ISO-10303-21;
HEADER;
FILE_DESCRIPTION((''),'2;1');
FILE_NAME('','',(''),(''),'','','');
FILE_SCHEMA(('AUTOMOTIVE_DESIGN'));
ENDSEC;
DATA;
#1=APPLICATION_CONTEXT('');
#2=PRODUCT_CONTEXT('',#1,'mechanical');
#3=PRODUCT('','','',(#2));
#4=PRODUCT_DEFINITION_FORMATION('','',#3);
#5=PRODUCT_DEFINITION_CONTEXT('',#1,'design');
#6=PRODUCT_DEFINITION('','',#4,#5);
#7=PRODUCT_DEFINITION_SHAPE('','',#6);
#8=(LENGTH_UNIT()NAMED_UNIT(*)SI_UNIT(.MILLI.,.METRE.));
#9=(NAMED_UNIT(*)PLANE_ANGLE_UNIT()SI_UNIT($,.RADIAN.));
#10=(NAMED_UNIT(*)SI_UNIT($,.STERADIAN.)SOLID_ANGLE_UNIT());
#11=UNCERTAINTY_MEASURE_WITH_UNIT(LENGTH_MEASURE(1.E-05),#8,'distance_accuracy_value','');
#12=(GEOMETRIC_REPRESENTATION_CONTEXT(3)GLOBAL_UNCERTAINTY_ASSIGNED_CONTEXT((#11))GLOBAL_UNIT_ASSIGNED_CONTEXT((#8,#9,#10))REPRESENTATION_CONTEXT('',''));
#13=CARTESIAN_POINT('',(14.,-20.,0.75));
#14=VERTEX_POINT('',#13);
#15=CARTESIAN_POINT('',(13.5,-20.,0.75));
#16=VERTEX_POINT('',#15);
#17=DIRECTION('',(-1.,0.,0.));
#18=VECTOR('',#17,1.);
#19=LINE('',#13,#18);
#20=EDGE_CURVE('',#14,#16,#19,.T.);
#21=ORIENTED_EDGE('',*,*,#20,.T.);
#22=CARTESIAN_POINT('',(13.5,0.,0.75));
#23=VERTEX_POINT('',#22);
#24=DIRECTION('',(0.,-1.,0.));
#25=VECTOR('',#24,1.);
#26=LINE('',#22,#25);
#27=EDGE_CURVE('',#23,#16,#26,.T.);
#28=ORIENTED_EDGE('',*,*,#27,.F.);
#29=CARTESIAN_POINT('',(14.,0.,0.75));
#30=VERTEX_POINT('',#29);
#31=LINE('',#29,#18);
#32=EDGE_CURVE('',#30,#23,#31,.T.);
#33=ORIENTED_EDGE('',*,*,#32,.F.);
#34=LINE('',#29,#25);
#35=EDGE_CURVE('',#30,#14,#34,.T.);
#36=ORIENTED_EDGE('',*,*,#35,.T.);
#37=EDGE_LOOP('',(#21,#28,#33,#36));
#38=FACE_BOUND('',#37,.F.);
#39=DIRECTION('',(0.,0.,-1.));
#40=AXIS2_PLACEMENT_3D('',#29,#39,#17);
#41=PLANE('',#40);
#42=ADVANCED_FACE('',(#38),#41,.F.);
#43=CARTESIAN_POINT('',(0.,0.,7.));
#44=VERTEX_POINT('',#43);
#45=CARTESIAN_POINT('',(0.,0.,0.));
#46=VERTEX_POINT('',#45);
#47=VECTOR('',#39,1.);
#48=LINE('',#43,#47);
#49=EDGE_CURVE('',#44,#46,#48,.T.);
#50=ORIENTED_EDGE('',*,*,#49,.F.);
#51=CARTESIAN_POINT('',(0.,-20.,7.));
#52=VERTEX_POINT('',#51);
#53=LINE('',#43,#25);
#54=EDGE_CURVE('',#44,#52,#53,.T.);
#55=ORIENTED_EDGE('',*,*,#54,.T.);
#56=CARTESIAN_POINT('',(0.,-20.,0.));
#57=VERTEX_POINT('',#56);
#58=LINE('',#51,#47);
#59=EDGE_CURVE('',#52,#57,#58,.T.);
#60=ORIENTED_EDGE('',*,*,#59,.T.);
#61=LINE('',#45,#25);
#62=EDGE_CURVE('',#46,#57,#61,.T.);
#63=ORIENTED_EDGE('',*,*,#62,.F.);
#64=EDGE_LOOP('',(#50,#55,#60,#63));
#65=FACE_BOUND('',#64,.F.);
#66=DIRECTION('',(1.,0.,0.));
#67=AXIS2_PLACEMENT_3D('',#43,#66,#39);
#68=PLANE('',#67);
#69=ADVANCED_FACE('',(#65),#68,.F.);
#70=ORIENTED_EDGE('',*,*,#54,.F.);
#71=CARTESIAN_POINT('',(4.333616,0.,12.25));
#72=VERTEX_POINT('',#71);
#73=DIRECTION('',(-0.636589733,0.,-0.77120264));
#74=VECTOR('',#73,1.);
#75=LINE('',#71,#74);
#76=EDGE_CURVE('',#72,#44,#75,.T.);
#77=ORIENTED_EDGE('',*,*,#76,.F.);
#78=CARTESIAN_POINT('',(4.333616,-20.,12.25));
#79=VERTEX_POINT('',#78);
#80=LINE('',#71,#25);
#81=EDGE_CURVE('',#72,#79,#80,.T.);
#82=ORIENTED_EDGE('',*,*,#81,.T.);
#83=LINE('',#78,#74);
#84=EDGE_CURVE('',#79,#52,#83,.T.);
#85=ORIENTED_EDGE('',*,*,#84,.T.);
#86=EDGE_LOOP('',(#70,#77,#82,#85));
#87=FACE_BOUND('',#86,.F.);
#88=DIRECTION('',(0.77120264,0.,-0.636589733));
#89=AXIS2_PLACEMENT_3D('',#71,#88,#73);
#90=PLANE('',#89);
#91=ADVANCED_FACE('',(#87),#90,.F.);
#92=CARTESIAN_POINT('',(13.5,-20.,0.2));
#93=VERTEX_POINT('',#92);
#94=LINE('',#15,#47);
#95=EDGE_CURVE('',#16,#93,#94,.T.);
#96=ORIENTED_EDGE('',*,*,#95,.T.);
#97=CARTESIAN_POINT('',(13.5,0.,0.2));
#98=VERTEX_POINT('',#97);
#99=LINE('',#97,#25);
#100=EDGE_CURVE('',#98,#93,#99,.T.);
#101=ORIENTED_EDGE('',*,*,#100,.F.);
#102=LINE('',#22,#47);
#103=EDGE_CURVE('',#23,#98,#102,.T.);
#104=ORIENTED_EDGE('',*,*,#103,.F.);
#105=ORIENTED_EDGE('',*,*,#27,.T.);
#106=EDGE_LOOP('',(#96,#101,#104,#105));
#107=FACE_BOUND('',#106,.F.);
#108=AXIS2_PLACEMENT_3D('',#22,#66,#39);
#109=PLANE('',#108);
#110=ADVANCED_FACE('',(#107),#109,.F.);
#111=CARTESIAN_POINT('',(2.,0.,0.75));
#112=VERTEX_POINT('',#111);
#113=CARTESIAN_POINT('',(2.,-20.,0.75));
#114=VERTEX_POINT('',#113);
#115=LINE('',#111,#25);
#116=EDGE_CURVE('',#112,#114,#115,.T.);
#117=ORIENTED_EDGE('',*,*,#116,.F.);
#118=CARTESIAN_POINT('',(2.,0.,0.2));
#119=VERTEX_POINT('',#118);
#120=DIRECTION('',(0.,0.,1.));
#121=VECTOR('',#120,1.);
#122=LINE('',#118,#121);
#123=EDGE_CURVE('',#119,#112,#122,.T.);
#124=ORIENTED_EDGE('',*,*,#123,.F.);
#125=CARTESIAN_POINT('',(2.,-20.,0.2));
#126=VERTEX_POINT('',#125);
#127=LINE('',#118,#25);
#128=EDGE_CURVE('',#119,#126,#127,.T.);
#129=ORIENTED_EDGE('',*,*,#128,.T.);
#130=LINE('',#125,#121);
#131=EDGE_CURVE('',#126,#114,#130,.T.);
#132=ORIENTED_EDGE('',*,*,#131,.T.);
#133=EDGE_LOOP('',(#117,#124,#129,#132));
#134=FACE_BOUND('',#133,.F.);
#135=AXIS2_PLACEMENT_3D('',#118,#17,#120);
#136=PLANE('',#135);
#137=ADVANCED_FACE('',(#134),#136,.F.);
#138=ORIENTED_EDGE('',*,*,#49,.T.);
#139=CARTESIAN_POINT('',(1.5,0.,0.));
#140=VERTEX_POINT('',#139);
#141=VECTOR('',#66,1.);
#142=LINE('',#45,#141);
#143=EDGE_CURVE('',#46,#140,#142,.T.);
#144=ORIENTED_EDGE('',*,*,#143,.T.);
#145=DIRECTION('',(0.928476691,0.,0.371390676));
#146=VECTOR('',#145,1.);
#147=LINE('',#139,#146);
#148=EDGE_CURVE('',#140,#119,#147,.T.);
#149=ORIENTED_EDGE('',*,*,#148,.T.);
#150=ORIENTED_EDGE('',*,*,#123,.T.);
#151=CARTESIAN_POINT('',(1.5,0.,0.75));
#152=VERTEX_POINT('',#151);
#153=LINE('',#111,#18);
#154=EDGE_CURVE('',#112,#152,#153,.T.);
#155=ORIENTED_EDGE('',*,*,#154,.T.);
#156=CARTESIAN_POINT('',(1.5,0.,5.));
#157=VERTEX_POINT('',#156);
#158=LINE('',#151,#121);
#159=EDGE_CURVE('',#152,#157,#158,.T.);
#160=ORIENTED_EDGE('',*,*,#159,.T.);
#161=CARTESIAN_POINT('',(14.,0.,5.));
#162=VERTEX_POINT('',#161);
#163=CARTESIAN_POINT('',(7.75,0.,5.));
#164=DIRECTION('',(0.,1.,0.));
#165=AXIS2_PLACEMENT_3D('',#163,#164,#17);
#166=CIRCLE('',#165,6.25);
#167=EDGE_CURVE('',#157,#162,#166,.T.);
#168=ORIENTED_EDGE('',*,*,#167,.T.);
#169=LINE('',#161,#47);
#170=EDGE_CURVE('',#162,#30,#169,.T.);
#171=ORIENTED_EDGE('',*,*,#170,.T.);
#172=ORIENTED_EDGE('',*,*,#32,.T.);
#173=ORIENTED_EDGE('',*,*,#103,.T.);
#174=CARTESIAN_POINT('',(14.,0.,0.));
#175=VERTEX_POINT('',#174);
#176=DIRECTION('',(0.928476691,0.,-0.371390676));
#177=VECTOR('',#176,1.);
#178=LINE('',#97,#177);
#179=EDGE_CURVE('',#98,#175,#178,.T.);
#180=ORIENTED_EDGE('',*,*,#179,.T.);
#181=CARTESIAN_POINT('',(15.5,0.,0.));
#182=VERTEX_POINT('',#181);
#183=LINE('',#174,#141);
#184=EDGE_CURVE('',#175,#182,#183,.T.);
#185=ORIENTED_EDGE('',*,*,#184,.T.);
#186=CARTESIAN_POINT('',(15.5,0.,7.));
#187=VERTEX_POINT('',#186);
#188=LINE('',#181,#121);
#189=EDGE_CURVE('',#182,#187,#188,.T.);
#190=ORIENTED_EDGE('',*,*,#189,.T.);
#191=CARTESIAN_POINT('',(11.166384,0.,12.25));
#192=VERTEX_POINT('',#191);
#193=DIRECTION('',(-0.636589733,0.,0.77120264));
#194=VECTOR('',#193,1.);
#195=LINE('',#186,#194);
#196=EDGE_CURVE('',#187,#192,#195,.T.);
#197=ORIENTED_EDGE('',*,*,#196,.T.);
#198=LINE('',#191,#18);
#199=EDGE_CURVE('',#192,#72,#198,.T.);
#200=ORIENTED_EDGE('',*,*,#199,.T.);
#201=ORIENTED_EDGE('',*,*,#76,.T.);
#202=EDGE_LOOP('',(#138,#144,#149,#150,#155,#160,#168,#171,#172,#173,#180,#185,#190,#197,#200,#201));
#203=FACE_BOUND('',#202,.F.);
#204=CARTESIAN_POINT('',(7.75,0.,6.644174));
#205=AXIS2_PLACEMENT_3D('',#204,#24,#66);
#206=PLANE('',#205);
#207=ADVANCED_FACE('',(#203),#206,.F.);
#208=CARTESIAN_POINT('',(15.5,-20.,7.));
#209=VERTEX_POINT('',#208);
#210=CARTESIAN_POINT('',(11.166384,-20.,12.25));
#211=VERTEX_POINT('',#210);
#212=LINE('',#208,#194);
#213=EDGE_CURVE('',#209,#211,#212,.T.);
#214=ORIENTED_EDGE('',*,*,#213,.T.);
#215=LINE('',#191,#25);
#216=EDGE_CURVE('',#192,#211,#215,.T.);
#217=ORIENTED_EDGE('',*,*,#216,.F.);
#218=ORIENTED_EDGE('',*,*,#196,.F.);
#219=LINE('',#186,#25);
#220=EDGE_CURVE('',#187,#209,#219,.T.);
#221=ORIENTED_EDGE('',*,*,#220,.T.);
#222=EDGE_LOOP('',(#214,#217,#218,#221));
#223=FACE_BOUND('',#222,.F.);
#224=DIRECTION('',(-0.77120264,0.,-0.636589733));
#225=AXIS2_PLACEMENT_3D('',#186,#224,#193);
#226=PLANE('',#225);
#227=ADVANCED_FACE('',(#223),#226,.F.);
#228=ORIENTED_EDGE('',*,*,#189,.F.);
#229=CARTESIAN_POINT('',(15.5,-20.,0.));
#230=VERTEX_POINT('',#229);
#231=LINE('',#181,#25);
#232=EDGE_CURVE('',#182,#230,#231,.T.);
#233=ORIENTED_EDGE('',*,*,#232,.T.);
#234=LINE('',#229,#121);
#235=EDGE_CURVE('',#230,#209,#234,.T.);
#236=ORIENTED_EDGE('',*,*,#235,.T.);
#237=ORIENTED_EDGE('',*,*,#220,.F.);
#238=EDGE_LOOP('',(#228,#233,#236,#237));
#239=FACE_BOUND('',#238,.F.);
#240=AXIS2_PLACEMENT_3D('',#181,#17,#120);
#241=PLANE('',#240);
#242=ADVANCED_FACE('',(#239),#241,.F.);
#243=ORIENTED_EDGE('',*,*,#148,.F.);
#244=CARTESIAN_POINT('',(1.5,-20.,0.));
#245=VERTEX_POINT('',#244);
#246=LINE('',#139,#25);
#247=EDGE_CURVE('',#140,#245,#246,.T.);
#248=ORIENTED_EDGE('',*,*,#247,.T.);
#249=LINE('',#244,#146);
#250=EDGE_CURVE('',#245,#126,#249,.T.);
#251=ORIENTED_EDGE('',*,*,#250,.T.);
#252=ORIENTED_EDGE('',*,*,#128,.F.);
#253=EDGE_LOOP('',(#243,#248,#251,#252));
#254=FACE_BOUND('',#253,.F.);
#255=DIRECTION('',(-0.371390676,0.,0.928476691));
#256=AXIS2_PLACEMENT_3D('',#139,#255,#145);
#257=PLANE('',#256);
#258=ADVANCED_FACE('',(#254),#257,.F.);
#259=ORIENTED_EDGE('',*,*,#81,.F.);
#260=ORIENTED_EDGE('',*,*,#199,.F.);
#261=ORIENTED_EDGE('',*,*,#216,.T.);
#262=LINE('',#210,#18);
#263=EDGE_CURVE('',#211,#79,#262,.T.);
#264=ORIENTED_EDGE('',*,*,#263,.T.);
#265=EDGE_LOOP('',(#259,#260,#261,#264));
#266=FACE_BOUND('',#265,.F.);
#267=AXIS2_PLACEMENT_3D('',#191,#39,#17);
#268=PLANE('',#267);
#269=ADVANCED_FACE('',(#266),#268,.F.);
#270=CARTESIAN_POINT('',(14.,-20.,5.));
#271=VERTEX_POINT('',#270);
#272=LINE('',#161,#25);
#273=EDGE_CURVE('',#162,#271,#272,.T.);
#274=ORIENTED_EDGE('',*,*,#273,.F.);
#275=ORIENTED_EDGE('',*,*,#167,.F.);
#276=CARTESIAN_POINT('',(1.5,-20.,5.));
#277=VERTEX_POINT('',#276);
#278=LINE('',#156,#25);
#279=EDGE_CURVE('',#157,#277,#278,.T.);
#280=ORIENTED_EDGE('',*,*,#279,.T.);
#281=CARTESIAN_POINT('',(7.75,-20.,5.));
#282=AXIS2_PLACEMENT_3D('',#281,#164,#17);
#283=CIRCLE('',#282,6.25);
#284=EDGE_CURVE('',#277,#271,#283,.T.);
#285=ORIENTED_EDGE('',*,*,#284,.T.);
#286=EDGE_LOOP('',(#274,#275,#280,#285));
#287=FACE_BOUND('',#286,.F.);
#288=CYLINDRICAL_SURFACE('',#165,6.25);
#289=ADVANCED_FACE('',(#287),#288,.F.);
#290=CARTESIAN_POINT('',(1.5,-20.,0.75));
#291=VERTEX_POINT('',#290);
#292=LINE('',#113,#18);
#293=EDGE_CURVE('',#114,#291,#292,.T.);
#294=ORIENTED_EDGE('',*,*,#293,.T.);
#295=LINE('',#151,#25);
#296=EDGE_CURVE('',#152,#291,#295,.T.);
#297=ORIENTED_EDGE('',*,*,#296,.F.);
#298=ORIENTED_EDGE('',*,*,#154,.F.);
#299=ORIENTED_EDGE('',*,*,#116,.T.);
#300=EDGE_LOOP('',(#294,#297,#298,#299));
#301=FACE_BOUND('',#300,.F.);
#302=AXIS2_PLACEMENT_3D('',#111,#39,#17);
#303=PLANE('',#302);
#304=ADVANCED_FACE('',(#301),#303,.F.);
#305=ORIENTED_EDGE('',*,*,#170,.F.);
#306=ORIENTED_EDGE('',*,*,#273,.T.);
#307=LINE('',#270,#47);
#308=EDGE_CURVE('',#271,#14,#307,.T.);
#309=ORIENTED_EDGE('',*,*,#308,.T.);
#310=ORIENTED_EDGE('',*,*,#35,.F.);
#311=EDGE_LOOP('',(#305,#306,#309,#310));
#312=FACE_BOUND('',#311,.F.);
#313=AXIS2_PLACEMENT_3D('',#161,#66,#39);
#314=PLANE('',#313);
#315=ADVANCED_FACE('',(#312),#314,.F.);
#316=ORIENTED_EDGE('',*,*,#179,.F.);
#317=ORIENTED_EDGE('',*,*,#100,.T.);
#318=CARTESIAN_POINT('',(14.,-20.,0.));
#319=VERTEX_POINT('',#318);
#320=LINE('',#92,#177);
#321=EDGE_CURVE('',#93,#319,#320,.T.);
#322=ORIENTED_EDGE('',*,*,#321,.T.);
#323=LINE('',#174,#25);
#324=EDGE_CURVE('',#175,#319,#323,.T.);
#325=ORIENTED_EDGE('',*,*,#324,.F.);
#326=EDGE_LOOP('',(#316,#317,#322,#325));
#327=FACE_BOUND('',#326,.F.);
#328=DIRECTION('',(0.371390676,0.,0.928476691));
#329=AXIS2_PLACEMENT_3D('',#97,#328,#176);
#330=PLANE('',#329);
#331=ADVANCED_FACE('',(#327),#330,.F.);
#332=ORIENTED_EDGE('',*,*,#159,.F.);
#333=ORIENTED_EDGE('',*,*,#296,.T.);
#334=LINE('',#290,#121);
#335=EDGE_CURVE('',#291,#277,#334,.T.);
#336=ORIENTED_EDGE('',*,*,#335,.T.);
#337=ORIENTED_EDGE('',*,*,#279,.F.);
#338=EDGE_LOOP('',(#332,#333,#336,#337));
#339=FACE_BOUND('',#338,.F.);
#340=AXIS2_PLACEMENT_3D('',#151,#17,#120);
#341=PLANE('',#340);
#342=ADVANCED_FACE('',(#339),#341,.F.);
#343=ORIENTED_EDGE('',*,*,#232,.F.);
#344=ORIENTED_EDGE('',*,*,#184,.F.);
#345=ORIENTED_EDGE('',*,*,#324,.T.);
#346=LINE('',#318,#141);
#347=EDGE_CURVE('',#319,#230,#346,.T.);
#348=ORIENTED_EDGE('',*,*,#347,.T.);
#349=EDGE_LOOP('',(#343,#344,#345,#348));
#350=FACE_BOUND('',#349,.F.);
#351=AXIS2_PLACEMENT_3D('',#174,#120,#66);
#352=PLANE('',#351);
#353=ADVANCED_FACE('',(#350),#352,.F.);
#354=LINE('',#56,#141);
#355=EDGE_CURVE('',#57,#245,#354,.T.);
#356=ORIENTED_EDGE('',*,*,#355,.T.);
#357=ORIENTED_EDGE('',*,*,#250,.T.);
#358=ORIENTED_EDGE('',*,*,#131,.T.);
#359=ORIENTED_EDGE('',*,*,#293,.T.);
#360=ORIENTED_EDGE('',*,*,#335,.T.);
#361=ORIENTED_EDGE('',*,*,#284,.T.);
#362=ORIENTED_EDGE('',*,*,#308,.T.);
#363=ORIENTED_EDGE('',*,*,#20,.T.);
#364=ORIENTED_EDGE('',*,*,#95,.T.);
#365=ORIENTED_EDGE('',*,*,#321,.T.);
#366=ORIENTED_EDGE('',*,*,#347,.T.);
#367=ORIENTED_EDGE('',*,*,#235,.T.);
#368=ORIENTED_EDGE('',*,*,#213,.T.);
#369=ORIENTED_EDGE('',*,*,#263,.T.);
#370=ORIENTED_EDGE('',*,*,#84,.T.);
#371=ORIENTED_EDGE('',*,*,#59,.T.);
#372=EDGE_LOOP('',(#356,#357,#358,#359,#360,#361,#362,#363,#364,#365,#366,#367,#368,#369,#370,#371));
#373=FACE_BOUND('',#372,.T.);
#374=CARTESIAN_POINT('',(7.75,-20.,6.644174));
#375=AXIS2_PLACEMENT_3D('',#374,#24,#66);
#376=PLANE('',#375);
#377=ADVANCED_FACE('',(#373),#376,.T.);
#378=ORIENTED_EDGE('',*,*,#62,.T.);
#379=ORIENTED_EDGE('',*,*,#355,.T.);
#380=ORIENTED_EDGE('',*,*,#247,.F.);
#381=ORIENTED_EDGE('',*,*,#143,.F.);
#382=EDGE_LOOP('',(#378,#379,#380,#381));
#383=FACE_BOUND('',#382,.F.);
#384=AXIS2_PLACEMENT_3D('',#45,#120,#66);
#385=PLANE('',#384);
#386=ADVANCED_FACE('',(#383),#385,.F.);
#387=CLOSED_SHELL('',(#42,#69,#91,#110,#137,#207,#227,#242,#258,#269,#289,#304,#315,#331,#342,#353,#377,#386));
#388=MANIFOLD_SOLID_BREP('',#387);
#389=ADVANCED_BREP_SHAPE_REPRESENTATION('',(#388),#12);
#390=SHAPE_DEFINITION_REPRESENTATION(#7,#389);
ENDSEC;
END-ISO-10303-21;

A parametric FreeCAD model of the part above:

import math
import FreeCAD as App
import Part
import Sketcher
from FreeCAD import Vector

doc = App.newDocument("Part")
params = doc.addObject("Spreadsheet::Sheet", "Params")
for row, (alias, value) in enumerate([
    ("sketch1_height", "7 mm"),
    ("sketch1_radius", "6.25 mm"),
    ("sketch1_width", "1.5 mm"),
    ("sketch1_width2", "0.5 mm"),
    ("sketch1_height2", "0.55 mm"),
    ("pad1_length", "20 mm"),
], start=1):
    params.set(f"A{row}", alias)
    params.set(f"B{row}", "=" + value)
    params.setAlias(f"B{row}", alias)

body = doc.addObject("PartDesign::Body", "Body")

# Sketch on XZ plane
sketch1 = doc.addObject("Sketcher::SketchObject", "Sketch")
body.addObject(sketch1)
sketch1.AttachmentSupport = (doc.XZ_Plane, [""])
sketch1.MapMode = "FlatFace"
sketch1.addGeometry([
    Part.LineSegment(Vector(0, 7, 0), Vector(0, 0, 0)),  # 0
    Part.LineSegment(Vector(0, 0, 0), Vector(1.5, 0, 0)),  # 1
    Part.LineSegment(Vector(1.5, 0, 0), Vector(2, 0.2, 0)),  # 2
    Part.LineSegment(Vector(2, 0.2, 0), Vector(2, 0.8, 0)),  # 3
    Part.LineSegment(Vector(2, 0.8, 0), Vector(1.5, 0.8, 0)),  # 4
    Part.LineSegment(Vector(1.5, 0.8, 0), Vector(1.5, 5, 0)),  # 5
    Part.ArcOfCircle(Part.Circle(Vector(7.8, 5, 0), Vector(0, 0, 1), 6.2), math.radians(0), math.radians(180)),  # 6
    Part.LineSegment(Vector(14, 5, 0), Vector(14, 0.8, 0)),  # 7
    Part.LineSegment(Vector(14, 0.8, 0), Vector(13.5, 0.8, 0)),  # 8
    Part.LineSegment(Vector(13.5, 0.8, 0), Vector(13.5, 0.2, 0)),  # 9
    Part.LineSegment(Vector(13.5, 0.2, 0), Vector(14, 0, 0)),  # 10
    Part.LineSegment(Vector(14, 0, 0), Vector(15.5, 0, 0)),  # 11
    Part.LineSegment(Vector(15.5, 0, 0), Vector(15.5, 7, 0)),  # 12
    Part.LineSegment(Vector(15.5, 7, 0), Vector(11.2, 12.2, 0)),  # 13
    Part.LineSegment(Vector(11.2, 12.2, 0), Vector(4.3, 12.2, 0)),  # 14
    Part.LineSegment(Vector(4.3, 12.2, 0), Vector(0, 7, 0)),  # 15
], False)
sketch1.addConstraint([
    Sketcher.Constraint("Coincident", 0, 2, 1, 1),
    Sketcher.Constraint("Coincident", 1, 2, 2, 1),
    Sketcher.Constraint("Coincident", 2, 2, 3, 1),
    Sketcher.Constraint("Coincident", 3, 2, 4, 1),
    Sketcher.Constraint("Coincident", 4, 2, 5, 1),
    Sketcher.Constraint("Tangent", 5, 2, 6, 2),
    Sketcher.Constraint("Tangent", 6, 1, 7, 1),
    Sketcher.Constraint("Coincident", 7, 2, 8, 1),
    Sketcher.Constraint("Coincident", 8, 2, 9, 1),
    Sketcher.Constraint("Coincident", 9, 2, 10, 1),
    Sketcher.Constraint("Coincident", 10, 2, 11, 1),
    Sketcher.Constraint("Coincident", 11, 2, 12, 1),
    Sketcher.Constraint("Coincident", 12, 2, 13, 1),
    Sketcher.Constraint("Coincident", 13, 2, 14, 1),
    Sketcher.Constraint("Coincident", 14, 2, 15, 1),
    Sketcher.Constraint("Coincident", 15, 2, 0, 1),
    Sketcher.Constraint("Vertical", 0),
    Sketcher.Constraint("Horizontal", 1),
    Sketcher.Constraint("Vertical", 3),
    Sketcher.Constraint("Horizontal", 4),
    Sketcher.Constraint("Vertical", 5),
    Sketcher.Constraint("Vertical", 7),
    Sketcher.Constraint("Horizontal", 8),
    Sketcher.Constraint("Vertical", 9),
    Sketcher.Constraint("Horizontal", 11),
    Sketcher.Constraint("Vertical", 12),
    Sketcher.Constraint("Horizontal", 14),
    Sketcher.Constraint("Coincident", 0, 2, -1, 1),
    Sketcher.Constraint("PointOnObject", 10, 2, -1),
    Sketcher.Constraint("Horizontal", 4, 2, 7, 2),
    Sketcher.Constraint("Horizontal", 2, 2, 9, 2),
    Sketcher.Constraint("Horizontal", 12, 2, 15, 2),
    Sketcher.Constraint("Vertical", 1, 2, 4, 2),
    Sketcher.Constraint("Vertical", 7, 2, 10, 2),
    Sketcher.Constraint("Equal", 4, 8),
    Sketcher.Constraint("Equal", 1, 11),
    Sketcher.Constraint("Equal", 13, 15),
    Sketcher.Constraint("DistanceY", 0, 2, 0, 1, 7.0),
    Sketcher.Constraint("Radius", 6, 6.25),
    Sketcher.Constraint("DistanceX", 1, 1, 1, 2, 1.5),
    Sketcher.Constraint("DistanceX", 4, 2, 4, 1, 0.5),
    Sketcher.Constraint("DistanceY", -1, 1, 6, 3, 5.0),
    Sketcher.Constraint("DistanceY", 3, 1, 3, 2, 0.55),
    Sketcher.Constraint("DistanceY", 5, 1, 5, 2, 4.25),
    Sketcher.Constraint("DistanceY", 8, 2, 13, 2, 11.5),
    Sketcher.Constraint("DistanceX", 14, 2, 14, 1, 6.832768),
])
sketch1.setExpression("Constraints[37]", "Params.sketch1_height")
sketch1.setExpression("Constraints[38]", "Params.sketch1_radius")
sketch1.setExpression("Constraints[39]", "Params.sketch1_width")
sketch1.setExpression("Constraints[40]", "Params.sketch1_width2")
sketch1.setExpression("Constraints[42]", "Params.sketch1_height2")
pad1 = doc.addObject("PartDesign::Pad", "Pad")
body.addObject(pad1)
pad1.Profile = sketch1
pad1.setExpression("Length", "Params.pad1_length")

doc.recompute()
